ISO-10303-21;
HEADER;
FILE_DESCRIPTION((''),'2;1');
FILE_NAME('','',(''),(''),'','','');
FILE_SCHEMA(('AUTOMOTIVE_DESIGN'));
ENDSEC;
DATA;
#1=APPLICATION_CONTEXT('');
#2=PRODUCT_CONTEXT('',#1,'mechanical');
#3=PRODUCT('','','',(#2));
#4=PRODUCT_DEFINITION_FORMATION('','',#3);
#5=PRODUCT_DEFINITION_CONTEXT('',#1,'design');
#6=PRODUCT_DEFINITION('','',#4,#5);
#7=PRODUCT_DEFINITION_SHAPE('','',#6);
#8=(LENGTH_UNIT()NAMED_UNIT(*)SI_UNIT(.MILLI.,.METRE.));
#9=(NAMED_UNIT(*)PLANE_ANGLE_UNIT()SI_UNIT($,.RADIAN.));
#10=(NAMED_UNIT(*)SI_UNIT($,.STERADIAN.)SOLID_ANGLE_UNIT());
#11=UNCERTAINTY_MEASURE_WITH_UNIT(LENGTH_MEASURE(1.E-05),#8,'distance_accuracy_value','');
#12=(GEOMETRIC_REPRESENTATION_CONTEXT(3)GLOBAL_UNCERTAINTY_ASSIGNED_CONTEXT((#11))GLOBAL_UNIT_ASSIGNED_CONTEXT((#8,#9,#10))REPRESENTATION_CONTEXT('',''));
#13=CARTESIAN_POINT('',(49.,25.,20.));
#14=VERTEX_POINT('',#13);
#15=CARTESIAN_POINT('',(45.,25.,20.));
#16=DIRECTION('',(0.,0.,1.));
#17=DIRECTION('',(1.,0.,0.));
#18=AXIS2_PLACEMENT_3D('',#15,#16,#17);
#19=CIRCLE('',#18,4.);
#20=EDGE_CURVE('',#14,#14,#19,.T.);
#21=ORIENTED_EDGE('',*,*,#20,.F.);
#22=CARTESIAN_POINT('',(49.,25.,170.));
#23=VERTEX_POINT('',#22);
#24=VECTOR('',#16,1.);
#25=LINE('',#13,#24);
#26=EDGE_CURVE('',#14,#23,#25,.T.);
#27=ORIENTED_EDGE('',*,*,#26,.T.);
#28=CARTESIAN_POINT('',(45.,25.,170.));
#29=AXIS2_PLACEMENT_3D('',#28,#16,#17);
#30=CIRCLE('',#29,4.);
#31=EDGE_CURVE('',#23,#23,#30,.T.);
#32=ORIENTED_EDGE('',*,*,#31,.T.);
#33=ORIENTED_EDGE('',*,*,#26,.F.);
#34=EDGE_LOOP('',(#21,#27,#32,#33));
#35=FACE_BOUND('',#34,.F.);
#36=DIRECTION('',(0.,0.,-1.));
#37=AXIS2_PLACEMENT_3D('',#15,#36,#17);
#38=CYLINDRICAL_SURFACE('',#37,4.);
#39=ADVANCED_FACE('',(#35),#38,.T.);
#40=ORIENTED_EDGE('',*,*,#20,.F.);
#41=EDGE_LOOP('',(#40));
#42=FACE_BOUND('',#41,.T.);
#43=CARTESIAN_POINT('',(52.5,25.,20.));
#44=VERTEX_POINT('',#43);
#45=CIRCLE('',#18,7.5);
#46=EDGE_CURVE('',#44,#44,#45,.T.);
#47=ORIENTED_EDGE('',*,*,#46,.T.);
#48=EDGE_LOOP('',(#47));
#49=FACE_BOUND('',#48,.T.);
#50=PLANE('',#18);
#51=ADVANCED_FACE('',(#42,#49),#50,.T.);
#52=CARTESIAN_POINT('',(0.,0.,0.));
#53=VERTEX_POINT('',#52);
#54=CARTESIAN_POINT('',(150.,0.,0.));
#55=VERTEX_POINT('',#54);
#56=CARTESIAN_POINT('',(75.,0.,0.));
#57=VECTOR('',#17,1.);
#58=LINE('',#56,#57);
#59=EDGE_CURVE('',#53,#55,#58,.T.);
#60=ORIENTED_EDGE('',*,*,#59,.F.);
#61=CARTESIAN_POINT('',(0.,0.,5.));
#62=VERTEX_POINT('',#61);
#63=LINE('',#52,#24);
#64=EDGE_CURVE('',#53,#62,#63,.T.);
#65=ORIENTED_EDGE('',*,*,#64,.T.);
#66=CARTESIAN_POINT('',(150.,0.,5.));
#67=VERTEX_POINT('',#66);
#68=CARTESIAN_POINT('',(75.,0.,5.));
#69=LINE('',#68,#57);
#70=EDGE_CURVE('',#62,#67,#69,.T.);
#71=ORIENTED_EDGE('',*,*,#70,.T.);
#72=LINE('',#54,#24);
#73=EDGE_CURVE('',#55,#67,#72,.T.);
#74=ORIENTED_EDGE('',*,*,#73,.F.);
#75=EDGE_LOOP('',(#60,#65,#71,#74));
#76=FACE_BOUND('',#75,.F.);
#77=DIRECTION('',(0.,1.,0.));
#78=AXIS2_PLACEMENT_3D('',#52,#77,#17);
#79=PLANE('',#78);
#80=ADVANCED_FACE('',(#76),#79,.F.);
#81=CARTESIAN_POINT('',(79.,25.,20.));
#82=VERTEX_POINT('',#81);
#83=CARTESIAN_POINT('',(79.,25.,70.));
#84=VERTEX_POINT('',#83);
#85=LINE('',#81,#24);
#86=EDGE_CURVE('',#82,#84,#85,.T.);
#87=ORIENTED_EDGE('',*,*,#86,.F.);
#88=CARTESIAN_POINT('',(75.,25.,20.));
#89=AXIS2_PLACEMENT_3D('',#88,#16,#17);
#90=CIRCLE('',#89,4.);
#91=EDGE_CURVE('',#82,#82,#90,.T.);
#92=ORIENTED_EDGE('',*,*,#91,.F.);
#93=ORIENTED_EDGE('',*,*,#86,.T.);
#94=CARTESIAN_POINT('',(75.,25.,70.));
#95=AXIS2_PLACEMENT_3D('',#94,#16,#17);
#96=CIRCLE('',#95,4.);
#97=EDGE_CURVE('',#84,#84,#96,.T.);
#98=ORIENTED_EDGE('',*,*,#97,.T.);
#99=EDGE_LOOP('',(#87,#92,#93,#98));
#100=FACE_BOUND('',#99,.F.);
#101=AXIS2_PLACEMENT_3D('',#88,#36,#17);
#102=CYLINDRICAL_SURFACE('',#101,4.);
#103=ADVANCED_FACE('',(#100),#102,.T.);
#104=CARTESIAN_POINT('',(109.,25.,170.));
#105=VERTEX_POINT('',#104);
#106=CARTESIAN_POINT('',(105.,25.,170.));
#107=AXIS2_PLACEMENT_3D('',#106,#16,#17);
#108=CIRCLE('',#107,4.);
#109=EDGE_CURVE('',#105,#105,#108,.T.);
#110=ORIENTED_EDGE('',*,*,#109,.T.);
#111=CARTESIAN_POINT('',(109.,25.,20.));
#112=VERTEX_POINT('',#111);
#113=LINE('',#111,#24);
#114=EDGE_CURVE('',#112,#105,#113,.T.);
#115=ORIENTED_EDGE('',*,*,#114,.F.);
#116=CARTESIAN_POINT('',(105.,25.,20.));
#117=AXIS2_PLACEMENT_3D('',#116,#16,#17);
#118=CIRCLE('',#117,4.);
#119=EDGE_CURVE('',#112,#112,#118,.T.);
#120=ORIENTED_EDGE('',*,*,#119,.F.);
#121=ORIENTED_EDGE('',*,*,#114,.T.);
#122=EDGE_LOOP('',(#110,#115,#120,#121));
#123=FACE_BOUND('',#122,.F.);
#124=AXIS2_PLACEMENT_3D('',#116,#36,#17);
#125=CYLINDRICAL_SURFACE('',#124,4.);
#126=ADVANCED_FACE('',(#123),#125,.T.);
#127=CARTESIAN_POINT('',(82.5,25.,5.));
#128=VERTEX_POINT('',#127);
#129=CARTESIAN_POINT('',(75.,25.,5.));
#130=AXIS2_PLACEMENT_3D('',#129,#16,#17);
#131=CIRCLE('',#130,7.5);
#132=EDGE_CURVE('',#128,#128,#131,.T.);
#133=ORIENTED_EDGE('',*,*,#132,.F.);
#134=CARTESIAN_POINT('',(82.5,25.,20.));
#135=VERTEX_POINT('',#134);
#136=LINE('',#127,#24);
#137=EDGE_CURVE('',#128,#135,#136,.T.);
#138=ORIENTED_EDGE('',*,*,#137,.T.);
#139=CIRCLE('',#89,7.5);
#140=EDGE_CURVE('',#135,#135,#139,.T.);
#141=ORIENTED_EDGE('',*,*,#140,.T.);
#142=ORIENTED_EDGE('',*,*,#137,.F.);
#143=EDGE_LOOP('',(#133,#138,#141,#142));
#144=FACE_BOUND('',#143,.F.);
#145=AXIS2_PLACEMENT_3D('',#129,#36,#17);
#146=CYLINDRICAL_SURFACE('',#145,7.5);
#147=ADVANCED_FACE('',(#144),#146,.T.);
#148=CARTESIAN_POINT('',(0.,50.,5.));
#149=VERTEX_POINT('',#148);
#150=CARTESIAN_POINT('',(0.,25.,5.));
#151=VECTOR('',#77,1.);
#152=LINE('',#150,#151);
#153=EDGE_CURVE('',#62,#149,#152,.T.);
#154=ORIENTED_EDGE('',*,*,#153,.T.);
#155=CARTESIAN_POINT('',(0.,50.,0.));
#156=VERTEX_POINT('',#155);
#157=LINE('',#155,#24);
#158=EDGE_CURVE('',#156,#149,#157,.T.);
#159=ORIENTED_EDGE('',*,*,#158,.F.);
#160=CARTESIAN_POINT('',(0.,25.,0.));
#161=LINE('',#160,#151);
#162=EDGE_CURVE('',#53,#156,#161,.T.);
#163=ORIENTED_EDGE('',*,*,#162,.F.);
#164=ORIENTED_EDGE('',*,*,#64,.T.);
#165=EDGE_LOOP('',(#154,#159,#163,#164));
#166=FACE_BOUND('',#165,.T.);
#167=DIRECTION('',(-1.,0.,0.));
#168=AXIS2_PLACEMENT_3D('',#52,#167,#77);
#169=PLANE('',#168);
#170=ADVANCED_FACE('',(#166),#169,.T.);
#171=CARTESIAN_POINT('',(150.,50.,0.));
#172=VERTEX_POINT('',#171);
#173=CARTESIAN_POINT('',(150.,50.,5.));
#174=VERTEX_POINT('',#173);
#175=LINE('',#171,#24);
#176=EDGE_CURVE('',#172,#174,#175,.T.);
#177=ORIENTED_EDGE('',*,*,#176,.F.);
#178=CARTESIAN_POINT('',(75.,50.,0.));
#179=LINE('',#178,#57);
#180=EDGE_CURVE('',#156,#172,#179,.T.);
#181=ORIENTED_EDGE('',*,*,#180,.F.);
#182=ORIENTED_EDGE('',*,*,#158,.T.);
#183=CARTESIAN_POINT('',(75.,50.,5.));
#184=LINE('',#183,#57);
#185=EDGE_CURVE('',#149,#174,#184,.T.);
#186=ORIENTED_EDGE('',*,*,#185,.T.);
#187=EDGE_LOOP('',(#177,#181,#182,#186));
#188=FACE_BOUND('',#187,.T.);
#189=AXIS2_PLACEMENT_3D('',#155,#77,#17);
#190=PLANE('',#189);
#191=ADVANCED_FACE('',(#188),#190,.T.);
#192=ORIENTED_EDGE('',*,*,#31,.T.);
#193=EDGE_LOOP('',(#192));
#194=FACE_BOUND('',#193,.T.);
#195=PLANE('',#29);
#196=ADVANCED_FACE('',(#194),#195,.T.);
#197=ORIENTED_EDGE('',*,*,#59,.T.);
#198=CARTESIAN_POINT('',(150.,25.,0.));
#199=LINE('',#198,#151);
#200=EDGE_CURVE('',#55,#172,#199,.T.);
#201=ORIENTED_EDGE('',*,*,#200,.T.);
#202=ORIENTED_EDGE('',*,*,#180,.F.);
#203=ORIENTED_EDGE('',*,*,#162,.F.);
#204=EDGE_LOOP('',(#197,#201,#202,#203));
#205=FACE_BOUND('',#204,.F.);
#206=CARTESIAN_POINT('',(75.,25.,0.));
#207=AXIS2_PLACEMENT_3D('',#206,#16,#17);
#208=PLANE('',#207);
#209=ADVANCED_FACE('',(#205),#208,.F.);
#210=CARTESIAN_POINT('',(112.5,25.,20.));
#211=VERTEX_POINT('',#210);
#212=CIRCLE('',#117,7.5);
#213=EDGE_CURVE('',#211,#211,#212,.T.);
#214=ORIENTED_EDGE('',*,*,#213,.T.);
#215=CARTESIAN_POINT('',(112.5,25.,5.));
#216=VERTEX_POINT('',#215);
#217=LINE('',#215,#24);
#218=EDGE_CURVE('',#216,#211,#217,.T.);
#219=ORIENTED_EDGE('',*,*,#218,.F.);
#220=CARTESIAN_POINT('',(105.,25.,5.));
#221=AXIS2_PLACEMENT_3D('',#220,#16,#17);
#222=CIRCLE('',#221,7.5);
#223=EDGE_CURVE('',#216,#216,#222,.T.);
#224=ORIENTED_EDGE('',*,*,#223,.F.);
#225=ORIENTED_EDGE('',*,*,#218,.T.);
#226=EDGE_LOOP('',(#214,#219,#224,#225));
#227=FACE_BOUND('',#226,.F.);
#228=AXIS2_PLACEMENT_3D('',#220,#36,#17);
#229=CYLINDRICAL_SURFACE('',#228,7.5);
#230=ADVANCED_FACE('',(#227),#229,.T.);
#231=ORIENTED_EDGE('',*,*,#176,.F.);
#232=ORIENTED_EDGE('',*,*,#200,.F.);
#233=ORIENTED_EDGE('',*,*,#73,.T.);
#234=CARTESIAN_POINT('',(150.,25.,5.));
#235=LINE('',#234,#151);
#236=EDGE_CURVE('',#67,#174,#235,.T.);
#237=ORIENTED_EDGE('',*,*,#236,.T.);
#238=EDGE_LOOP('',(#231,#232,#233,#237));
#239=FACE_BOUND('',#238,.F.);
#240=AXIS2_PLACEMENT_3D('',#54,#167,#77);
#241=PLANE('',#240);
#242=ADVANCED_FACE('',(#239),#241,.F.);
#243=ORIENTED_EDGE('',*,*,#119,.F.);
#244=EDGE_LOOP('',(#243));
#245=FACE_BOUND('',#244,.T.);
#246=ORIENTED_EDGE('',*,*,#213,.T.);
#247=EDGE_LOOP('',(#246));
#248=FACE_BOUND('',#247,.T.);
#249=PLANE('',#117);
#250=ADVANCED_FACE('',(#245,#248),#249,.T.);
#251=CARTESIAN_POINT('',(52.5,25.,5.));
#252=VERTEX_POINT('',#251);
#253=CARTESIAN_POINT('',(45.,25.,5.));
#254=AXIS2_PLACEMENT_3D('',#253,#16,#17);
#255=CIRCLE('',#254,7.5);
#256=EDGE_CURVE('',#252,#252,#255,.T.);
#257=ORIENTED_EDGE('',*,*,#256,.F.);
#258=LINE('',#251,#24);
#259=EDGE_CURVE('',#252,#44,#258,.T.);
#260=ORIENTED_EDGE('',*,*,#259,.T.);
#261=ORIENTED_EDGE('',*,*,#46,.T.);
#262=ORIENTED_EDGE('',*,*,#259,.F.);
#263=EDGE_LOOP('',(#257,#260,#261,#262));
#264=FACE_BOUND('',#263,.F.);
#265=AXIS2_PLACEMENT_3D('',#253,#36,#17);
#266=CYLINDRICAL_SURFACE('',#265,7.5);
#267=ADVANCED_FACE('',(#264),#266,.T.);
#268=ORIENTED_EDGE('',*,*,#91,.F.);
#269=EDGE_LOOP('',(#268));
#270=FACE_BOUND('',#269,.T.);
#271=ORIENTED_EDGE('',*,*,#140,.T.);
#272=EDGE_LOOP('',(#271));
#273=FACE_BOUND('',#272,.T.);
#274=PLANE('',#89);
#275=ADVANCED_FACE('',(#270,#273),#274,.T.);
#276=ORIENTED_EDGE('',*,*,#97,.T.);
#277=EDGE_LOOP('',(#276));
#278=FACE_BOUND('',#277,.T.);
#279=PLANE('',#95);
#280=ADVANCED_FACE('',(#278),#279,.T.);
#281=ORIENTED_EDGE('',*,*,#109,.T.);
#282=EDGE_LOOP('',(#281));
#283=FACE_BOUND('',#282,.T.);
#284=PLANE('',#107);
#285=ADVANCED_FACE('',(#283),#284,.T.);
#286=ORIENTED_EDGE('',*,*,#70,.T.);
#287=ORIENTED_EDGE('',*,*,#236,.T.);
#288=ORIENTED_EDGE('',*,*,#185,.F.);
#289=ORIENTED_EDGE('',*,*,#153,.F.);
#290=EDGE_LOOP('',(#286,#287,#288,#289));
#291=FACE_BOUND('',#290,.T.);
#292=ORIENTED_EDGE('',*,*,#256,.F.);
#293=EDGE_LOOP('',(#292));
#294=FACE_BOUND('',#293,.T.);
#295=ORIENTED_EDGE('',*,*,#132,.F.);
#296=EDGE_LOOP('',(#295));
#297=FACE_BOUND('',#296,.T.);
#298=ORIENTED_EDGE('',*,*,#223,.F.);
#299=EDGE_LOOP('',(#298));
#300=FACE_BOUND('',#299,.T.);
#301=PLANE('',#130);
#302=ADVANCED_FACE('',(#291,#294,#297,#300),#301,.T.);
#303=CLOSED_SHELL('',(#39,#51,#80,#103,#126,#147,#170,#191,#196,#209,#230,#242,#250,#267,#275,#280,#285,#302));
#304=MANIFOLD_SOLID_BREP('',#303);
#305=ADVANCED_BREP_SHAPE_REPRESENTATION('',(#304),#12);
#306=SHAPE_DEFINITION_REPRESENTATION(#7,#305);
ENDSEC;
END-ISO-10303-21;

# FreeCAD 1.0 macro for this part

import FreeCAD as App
import Part
import Sketcher


def add_polygon(sketch, points):
    """Adds a closed chain of lines whose ends are joined by coincident constraints."""
    first, n = sketch.GeometryCount, len(points)
    for a, b in zip(points, points[1:] + points[:1]):
        sketch.addGeometry(Part.LineSegment(App.Vector(*a, 0), App.Vector(*b, 0)), False)
    for i in range(n):
        sketch.addConstraint(Sketcher.Constraint("Coincident", first + i, 2, first + (i + 1) % n, 1))

doc = App.newDocument("Part")
body = doc.addObject("PartDesign::Body", "Body")

# Sketch on XY plane
sketch1 = body.newObject("Sketcher::SketchObject", "Sketch")
sketch1.AttachmentSupport = (doc.getObject("XY_Plane"), [""])
sketch1.MapMode = "FlatFace"
add_polygon(sketch1, [(0, 50), (0, 0), (150, 0), (150, 50)])  # lines 0-3
sketch1.addConstraint([
    Sketcher.Constraint("Vertical", 0),
    Sketcher.Constraint("Horizontal", 1),
    Sketcher.Constraint("Vertical", 2),
    Sketcher.Constraint("Horizontal", 3),
    Sketcher.Constraint("Coincident", 0, 2, -1, 1),
    Sketcher.Constraint("DistanceX", 1, 1, 1, 2, 150.0),
    Sketcher.Constraint("DistanceY", 0, 2, 0, 1, 50.0),
])
pad1 = body.newObject("PartDesign::Pad", "Pad")
pad1.Profile = sketch1
pad1.Length = 5

# Sketch on XY plane
sketch2 = body.newObject("Sketcher::SketchObject", "Sketch001")
sketch2.AttachmentSupport = (doc.getObject("XY_Plane"), [""])
sketch2.MapMode = "FlatFace"
sketch2.AttachmentOffset = App.Placement(App.Vector(0, 0, 5), App.Rotation())
sketch2.addGeometry([
    Part.Circle(App.Vector(45, 25, 0), App.Vector(0, 0, 1), 7.5),
    Part.Circle(App.Vector(75, 25, 0), App.Vector(0, 0, 1), 7.5),
    Part.Circle(App.Vector(105, 25, 0), App.Vector(0, 0, 1), 7.5),
], False)
sketch2.addConstraint([
    Sketcher.Constraint("Equal", 0, 1),
    Sketcher.Constraint("Equal", 1, 2),
    Sketcher.Constraint("Horizontal", 0, 3, 1, 3),
    Sketcher.Constraint("Horizontal", 1, 3, 2, 3),
    Sketcher.Constraint("Diameter", 0, 15.0),
    Sketcher.Constraint("DistanceX", -1, 1, 0, 3, 45.0),
    Sketcher.Constraint("DistanceY", -1, 1, 0, 3, 25.0),
    Sketcher.Constraint("DistanceX", -1, 1, 1, 3, 75.0),
    Sketcher.Constraint("DistanceX", -1, 1, 2, 3, 105.0),
])
pad2 = body.newObject("PartDesign::Pad", "Pad001")
pad2.Profile = sketch2
pad2.Length = 15

# Sketch on XY plane
sketch3 = body.newObject("Sketcher::SketchObject", "Sketch002")
sketch3.AttachmentSupport = (doc.getObject("XY_Plane"), [""])
sketch3.MapMode = "FlatFace"
sketch3.AttachmentOffset = App.Placement(App.Vector(0, 0, 20), App.Rotation())
sketch3.addGeometry([
    Part.Circle(App.Vector(45, 25, 0), App.Vector(0, 0, 1), 4),
    Part.Circle(App.Vector(105, 25, 0), App.Vector(0, 0, 1), 4),
], False)
sketch3.addConstraint([
    Sketcher.Constraint("Equal", 0, 1),
    Sketcher.Constraint("Horizontal", 0, 3, 1, 3),
    Sketcher.Constraint("Diameter", 0, 8.0),
    Sketcher.Constraint("DistanceX", -1, 1, 0, 3, 45.0),
    Sketcher.Constraint("DistanceY", -1, 1, 0, 3, 25.0),
    Sketcher.Constraint("DistanceX", -1, 1, 1, 3, 105.0),
])
pad3 = body.newObject("PartDesign::Pad", "Pad002")
pad3.Profile = sketch3
pad3.Length = 150

# Sketch on XY plane
sketch4 = body.newObject("Sketcher::SketchObject", "Sketch003")
sketch4.AttachmentSupport = (doc.getObject("XY_Plane"), [""])
sketch4.MapMode = "FlatFace"
sketch4.AttachmentOffset = App.Placement(App.Vector(0, 0, 20), App.Rotation())
sketch4.addGeometry(Part.Circle(App.Vector(75, 25, 0), App.Vector(0, 0, 1), 4), False)
sketch4.addConstraint([
    Sketcher.Constraint("Diameter", 0, 8.0),
    Sketcher.Constraint("DistanceX", -1, 1, 0, 3, 75.0),
    Sketcher.Constraint("DistanceY", -1, 1, 0, 3, 25.0),
])
pad4 = body.newObject("PartDesign::Pad", "Pad003")
pad4.Profile = sketch4
pad4.Length = 50

doc.recompute()
